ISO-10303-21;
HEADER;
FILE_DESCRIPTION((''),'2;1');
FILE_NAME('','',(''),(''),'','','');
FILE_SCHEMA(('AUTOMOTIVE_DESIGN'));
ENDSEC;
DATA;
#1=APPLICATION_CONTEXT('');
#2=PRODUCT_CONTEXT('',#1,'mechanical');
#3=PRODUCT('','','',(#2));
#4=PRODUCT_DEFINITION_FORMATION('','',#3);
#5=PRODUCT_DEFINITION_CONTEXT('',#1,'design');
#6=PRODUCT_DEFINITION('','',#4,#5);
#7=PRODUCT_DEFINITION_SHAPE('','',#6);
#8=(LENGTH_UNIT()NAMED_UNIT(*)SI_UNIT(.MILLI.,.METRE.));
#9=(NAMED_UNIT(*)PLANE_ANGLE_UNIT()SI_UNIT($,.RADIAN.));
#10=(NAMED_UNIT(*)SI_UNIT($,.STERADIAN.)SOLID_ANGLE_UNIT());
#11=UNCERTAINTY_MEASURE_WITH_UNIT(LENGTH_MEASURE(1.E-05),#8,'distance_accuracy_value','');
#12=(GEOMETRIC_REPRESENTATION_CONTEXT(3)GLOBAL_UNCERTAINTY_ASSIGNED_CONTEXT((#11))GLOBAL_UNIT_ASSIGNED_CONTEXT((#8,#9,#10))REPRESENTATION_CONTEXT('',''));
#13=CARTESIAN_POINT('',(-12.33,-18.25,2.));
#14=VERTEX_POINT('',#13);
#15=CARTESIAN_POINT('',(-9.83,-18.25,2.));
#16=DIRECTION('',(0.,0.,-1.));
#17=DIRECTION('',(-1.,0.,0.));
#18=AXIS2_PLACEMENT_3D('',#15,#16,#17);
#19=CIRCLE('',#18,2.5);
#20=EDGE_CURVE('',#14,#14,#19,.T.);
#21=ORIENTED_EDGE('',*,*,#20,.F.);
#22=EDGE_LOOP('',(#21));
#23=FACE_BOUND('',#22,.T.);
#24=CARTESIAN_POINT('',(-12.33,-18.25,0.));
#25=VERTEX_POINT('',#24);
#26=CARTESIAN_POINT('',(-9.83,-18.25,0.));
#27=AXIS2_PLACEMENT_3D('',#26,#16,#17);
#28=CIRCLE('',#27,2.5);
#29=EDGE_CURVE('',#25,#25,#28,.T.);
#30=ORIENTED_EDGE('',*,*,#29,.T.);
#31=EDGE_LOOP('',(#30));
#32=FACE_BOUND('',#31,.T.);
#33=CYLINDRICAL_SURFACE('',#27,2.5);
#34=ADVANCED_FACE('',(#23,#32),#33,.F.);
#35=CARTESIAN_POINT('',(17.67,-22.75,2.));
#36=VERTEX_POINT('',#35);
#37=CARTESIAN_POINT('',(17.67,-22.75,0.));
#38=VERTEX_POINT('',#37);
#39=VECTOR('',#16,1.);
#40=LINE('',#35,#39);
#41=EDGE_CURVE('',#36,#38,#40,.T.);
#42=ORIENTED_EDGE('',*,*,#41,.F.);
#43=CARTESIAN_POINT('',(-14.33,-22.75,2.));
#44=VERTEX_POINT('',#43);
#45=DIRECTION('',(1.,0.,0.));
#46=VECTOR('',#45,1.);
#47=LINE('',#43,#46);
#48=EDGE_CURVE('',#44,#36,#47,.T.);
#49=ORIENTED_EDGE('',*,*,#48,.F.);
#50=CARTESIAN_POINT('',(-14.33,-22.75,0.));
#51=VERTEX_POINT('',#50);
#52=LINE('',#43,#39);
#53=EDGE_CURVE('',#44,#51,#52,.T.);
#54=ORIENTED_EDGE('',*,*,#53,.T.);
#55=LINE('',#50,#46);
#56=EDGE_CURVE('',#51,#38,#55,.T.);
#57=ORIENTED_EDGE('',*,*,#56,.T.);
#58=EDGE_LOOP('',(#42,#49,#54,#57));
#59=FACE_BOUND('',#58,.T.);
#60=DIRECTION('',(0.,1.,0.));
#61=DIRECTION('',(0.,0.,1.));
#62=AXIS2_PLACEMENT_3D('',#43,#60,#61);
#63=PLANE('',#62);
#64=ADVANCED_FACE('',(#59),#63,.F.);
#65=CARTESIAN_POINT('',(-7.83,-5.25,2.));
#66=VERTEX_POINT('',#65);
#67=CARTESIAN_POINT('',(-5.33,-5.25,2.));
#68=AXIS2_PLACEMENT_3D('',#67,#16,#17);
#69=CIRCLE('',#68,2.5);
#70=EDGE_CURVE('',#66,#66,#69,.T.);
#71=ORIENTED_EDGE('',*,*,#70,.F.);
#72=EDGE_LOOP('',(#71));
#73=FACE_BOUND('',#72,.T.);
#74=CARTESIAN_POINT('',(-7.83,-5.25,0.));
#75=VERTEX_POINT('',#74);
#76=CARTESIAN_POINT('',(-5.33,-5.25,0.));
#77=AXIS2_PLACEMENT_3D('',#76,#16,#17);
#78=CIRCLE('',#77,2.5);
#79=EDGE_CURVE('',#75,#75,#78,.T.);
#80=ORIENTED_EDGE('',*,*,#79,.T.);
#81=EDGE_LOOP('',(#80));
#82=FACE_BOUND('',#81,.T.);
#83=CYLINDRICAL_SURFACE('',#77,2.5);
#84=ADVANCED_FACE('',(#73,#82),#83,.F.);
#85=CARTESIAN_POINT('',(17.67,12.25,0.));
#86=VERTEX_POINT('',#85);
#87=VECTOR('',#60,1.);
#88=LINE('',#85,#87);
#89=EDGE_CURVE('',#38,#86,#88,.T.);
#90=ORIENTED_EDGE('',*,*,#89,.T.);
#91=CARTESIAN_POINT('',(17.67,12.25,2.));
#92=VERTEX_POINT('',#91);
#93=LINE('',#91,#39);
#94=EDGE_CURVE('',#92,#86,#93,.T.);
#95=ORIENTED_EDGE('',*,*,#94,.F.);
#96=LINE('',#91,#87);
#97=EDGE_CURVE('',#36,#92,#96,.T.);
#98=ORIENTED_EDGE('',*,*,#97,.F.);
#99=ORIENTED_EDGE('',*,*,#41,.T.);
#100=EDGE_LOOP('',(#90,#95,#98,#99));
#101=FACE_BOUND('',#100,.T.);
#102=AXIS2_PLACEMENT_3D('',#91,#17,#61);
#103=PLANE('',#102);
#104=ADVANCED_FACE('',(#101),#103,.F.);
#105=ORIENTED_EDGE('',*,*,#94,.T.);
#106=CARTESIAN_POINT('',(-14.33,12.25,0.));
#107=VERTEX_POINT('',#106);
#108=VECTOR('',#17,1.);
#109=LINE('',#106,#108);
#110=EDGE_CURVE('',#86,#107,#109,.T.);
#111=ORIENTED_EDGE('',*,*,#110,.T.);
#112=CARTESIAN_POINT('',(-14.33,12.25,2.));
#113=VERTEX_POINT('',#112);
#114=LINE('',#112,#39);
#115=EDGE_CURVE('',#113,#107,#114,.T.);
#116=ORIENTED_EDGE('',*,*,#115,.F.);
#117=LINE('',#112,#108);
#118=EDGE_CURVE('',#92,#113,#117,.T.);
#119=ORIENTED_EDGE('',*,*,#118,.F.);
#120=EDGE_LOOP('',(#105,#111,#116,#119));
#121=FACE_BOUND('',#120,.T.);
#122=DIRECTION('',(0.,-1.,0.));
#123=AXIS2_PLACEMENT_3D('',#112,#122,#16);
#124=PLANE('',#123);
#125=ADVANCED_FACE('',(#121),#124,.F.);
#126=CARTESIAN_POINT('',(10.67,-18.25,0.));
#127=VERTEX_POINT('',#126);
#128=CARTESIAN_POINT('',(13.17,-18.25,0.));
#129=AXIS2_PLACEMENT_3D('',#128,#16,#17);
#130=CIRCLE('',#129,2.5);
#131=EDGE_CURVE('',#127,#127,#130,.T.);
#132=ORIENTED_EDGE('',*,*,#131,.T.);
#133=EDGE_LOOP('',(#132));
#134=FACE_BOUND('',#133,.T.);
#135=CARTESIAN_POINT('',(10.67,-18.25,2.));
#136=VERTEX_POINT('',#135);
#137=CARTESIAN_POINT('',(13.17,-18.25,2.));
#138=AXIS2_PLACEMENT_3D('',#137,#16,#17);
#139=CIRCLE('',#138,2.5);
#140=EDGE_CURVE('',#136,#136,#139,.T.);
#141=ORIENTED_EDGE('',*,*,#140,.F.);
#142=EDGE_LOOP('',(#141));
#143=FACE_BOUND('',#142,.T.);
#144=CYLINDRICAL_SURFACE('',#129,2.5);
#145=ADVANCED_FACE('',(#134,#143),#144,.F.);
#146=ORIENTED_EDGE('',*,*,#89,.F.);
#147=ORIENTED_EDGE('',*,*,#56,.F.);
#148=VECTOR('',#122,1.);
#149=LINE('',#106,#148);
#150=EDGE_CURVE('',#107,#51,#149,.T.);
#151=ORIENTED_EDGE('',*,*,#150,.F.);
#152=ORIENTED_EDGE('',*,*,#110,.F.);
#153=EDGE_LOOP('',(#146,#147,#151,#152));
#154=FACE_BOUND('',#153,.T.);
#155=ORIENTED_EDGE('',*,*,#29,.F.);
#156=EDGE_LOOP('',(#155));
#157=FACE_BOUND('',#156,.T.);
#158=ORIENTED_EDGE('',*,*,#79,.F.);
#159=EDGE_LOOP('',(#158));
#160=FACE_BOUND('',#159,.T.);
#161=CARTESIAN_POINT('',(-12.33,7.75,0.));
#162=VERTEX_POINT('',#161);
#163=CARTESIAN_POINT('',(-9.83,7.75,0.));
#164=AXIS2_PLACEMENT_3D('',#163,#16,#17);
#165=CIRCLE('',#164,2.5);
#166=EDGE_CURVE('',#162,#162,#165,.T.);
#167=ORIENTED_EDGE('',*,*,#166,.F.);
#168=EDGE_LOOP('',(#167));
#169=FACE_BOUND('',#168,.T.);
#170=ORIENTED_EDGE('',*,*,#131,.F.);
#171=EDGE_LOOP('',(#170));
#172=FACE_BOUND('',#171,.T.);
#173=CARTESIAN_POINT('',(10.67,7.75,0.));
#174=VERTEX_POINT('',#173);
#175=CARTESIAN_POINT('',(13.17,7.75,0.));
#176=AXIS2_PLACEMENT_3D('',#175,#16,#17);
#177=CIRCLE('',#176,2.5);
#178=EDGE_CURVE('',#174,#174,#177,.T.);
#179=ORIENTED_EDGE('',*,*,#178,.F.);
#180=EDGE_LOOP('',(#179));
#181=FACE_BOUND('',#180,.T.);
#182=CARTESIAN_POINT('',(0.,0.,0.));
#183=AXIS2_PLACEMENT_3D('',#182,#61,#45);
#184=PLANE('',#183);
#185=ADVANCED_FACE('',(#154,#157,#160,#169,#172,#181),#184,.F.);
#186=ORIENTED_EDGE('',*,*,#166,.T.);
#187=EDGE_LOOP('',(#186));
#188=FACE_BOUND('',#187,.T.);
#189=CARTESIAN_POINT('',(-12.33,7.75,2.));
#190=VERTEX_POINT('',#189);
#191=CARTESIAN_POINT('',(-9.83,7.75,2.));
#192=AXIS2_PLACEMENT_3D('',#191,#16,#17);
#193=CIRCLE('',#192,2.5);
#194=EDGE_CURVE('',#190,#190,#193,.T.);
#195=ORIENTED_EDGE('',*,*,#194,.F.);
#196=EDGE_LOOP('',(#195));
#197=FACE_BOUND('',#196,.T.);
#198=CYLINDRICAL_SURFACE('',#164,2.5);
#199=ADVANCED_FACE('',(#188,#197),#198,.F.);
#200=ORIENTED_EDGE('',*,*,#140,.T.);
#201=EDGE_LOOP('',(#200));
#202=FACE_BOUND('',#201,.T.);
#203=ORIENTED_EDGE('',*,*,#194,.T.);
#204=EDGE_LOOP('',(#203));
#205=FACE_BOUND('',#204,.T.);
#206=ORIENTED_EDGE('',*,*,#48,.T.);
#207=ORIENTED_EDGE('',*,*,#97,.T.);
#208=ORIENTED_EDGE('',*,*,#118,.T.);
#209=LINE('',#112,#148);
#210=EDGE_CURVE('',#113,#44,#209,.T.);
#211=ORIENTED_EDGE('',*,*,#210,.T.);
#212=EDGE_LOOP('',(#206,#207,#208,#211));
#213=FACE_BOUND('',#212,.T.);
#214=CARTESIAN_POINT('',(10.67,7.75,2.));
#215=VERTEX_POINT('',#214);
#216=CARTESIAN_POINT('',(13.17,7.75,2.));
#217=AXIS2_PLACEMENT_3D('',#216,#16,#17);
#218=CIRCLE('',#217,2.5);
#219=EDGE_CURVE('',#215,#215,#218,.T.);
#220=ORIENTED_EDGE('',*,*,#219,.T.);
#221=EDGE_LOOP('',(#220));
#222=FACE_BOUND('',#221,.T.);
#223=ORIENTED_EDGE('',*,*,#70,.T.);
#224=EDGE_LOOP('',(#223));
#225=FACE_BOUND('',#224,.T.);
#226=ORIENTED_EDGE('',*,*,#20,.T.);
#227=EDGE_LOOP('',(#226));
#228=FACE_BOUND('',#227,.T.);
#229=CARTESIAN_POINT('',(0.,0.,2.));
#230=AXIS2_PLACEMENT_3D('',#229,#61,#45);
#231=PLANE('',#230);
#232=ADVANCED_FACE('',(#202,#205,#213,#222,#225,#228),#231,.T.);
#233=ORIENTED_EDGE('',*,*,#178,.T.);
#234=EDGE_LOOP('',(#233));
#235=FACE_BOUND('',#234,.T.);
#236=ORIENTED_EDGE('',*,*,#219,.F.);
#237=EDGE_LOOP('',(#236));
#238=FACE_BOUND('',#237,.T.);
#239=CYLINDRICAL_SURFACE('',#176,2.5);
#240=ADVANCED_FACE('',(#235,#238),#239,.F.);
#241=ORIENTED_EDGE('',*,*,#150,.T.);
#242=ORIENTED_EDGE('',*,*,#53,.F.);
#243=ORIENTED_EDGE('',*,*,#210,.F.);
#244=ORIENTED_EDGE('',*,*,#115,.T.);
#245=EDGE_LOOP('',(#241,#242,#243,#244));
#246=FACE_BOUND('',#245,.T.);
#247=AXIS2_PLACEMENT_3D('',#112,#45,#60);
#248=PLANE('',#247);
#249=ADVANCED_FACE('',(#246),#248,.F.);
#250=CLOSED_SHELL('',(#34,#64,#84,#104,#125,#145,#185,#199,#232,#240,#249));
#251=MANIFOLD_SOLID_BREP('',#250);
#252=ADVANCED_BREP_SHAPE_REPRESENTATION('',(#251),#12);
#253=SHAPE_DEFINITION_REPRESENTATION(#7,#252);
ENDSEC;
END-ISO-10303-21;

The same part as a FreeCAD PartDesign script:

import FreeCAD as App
import Part
import Sketcher

V = App.Vector

doc = App.newDocument("Part")
params = doc.addObject("Spreadsheet::Sheet", "Params")
for row, (alias, value) in enumerate([
    ("sketch1_width", "32 mm"),
    ("sketch1_height", "35 mm"),
    ("pad1_length", "2 mm"),
    ("sketch2_diameter", "5 mm"),
    ("hole_diameter", "5 mm"),
    ("sketch3_diameter", "5 mm"),
    ("hole2_diameter", "5 mm"),
], start=1):
    params.set(f"A{row}", alias)
    params.set(f"B{row}", "=" + value)
    params.setAlias(f"B{row}", alias)

body = doc.addObject("PartDesign::Body", "Body")

# Sketch on XY plane
sketch1 = body.newObject("Sketcher::SketchObject", "Sketch")
sketch1.AttachmentSupport = (doc.getObject("XY_Plane"), [""])
sketch1.MapMode = "FlatFace"
sketch1.addGeometry(Part.LineSegment(V(-14, 12, 0), V(-14, -23, 0)), False)
sketch1.addGeometry(Part.LineSegment(V(-14, -23, 0), V(18, -23, 0)), False)
sketch1.addGeometry(Part.LineSegment(V(18, -23, 0), V(18, 12, 0)), False)
sketch1.addGeometry(Part.LineSegment(V(18, 12, 0), V(-14, 12, 0)), False)
sketch1.addConstraint(Sketcher.Constraint("Coincident", 0, 2, 1, 1))
sketch1.addConstraint(Sketcher.Constraint("Coincident", 1, 2, 2, 1))
sketch1.addConstraint(Sketcher.Constraint("Coincident", 2, 2, 3, 1))
sketch1.addConstraint(Sketcher.Constraint("Coincident", 3, 2, 0, 1))
sketch1.addConstraint(Sketcher.Constraint("Vertical", 0))
sketch1.addConstraint(Sketcher.Constraint("Horizontal", 1))
sketch1.addConstraint(Sketcher.Constraint("Vertical", 2))
sketch1.addConstraint(Sketcher.Constraint("Horizontal", 3))
sketch1.addConstraint(Sketcher.Constraint("DistanceX", 1, 1, 1, 2, 32.0))
sketch1.addConstraint(Sketcher.Constraint("DistanceY", 0, 2, 0, 1, 35.0))
sketch1.addConstraint(Sketcher.Constraint("DistanceX", 0, 2, -1, 1, 14.33))
sketch1.addConstraint(Sketcher.Constraint("DistanceY", 0, 2, -1, 1, 22.75))
sketch1.setExpression("Constraints[8]", "Params.sketch1_width")
sketch1.setExpression("Constraints[9]", "Params.sketch1_height")
pad1 = body.newObject("PartDesign::Pad", "Pad")
pad1.Profile = sketch1
pad1.setExpression("Length", "Params.pad1_length")

# Sketch on XY plane
sketch2 = body.newObject("Sketcher::SketchObject", "Sketch001")
sketch2.AttachmentSupport = (doc.getObject("XY_Plane"), [""])
sketch2.MapMode = "FlatFace"
sketch2.addGeometry(Part.Circle(V(-9.8, -18.2, 0), V(0, 0, 1), 2.5), False)
sketch2.addGeometry(Part.Circle(V(13.2, -18.2, 0), V(0, 0, 1), 2.5), False)
sketch2.addGeometry(Part.Circle(V(13.2, 7.8, 0), V(0, 0, 1), 2.5), False)
sketch2.addGeometry(Part.Circle(V(-9.8, 7.8, 0), V(0, 0, 1), 2.5), False)
sketch2.addConstraint(Sketcher.Constraint("Equal", 0, 1))
sketch2.addConstraint(Sketcher.Constraint("Equal", 1, 2))
sketch2.addConstraint(Sketcher.Constraint("Equal", 2, 3))
sketch2.addConstraint(Sketcher.Constraint("Horizontal", 0, 3, 1, 3))
sketch2.addConstraint(Sketcher.Constraint("Horizontal", 2, 3, 3, 3))
sketch2.addConstraint(Sketcher.Constraint("Vertical", 1, 3, 2, 3))
sketch2.addConstraint(Sketcher.Constraint("Vertical", 0, 3, 3, 3))
sketch2.addConstraint(Sketcher.Constraint("Diameter", 0, 5.0))
sketch2.addConstraint(Sketcher.Constraint("DistanceX", 0, 3, 1, 3, 23.0))
sketch2.addConstraint(Sketcher.Constraint("DistanceY", 1, 3, 2, 3, 26.0))
sketch2.addConstraint(Sketcher.Constraint("DistanceX", 0, 3, -1, 1, 9.83))
sketch2.addConstraint(Sketcher.Constraint("DistanceY", 0, 3, -1, 1, 18.25))
sketch2.setExpression("Constraints[7]", "Params.sketch2_diameter")
doc.recompute()
hole = body.newObject("PartDesign::Hole", "Hole")
hole.Profile = sketch2
hole.ThreadType = "None"
hole.setExpression("Diameter", "Params.hole_diameter")
hole.DepthType = "ThroughAll"
hole.Reversed = True

# Sketch on XY plane
sketch3 = body.newObject("Sketcher::SketchObject", "Sketch002")
sketch3.AttachmentSupport = (doc.getObject("XY_Plane"), [""])
sketch3.MapMode = "FlatFace"
sketch3.addGeometry(Part.Circle(V(-5.3, -5.2, 0), V(0, 0, 1), 2.5), False)
sketch3.addConstraint(Sketcher.Constraint("Diameter", 0, 5.0))
sketch3.addConstraint(Sketcher.Constraint("DistanceX", 0, 3, -1, 1, 5.33))
sketch3.addConstraint(Sketcher.Constraint("DistanceY", 0, 3, -1, 1, 5.25))
sketch3.setExpression("Constraints[0]", "Params.sketch3_diameter")
doc.recompute()
hole2 = body.newObject("PartDesign::Hole", "Hole001")
hole2.Profile = sketch3
hole2.ThreadType = "None"
hole2.setExpression("Diameter", "Params.hole2_diameter")
hole2.DepthType = "ThroughAll"
hole2.Reversed = True

doc.recompute()
